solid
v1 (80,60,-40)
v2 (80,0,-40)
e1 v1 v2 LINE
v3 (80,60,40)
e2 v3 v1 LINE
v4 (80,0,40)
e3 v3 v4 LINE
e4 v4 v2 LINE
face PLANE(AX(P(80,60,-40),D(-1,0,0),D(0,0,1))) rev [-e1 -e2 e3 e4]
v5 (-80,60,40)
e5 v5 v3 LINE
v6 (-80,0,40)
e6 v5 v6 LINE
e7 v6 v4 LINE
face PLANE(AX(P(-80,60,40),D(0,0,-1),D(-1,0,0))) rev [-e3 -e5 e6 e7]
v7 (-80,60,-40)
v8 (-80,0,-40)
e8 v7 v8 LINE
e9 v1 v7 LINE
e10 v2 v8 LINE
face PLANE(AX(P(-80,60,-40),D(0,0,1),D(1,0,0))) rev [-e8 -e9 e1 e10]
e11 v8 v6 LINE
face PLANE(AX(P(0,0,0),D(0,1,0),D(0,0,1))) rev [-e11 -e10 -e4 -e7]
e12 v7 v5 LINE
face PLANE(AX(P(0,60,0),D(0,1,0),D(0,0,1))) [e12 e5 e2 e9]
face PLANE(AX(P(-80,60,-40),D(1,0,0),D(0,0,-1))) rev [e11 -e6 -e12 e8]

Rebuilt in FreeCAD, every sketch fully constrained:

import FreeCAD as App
import Part
import Sketcher

doc = App.newDocument("Part")
body = doc.addObject("PartDesign::Body", "Body")

sketch1 = body.newObject("Sketcher::SketchObject", "Sketch")
sketch1.AttachmentSupport = (doc.getObject("XZ_Plane"), [""])
sketch1.MapMode = "FlatFace"
sketch1.addGeometry([
    Part.LineSegment(App.Vector(-80, -40, 0), App.Vector(-80, 40, 0)),
    Part.LineSegment(App.Vector(-80, 40, 0), App.Vector(80, 40, 0)),
    Part.LineSegment(App.Vector(80, 40, 0), App.Vector(80, -40, 0)),
    Part.LineSegment(App.Vector(80, -40, 0), App.Vector(-80, -40, 0)),
], False)
sketch1.addConstraint([
    Sketcher.Constraint("Coincident", 0, 2, 1, 1),
    Sketcher.Constraint("Coincident", 1, 2, 2, 1),
    Sketcher.Constraint("Coincident", 2, 2, 3, 1),
    Sketcher.Constraint("Coincident", 3, 2, 0, 1),
    Sketcher.Constraint("Vertical", 0),
    Sketcher.Constraint("Horizontal", 1),
    Sketcher.Constraint("Vertical", 2),
    Sketcher.Constraint("Horizontal", 3),
    Sketcher.Constraint("Symmetric", 0, 2, 2, 2, -1, 1),
    Sketcher.Constraint("DistanceX", 1, 1, 1, 2, 160.0),
    Sketcher.Constraint("DistanceY", 0, 1, 0, 2, 80.0),
])
pad1 = body.newObject("PartDesign::Pad", "Pad")
pad1.Profile = sketch1
pad1.Length = 60
pad1.Reversed = True

doc.recompute()
